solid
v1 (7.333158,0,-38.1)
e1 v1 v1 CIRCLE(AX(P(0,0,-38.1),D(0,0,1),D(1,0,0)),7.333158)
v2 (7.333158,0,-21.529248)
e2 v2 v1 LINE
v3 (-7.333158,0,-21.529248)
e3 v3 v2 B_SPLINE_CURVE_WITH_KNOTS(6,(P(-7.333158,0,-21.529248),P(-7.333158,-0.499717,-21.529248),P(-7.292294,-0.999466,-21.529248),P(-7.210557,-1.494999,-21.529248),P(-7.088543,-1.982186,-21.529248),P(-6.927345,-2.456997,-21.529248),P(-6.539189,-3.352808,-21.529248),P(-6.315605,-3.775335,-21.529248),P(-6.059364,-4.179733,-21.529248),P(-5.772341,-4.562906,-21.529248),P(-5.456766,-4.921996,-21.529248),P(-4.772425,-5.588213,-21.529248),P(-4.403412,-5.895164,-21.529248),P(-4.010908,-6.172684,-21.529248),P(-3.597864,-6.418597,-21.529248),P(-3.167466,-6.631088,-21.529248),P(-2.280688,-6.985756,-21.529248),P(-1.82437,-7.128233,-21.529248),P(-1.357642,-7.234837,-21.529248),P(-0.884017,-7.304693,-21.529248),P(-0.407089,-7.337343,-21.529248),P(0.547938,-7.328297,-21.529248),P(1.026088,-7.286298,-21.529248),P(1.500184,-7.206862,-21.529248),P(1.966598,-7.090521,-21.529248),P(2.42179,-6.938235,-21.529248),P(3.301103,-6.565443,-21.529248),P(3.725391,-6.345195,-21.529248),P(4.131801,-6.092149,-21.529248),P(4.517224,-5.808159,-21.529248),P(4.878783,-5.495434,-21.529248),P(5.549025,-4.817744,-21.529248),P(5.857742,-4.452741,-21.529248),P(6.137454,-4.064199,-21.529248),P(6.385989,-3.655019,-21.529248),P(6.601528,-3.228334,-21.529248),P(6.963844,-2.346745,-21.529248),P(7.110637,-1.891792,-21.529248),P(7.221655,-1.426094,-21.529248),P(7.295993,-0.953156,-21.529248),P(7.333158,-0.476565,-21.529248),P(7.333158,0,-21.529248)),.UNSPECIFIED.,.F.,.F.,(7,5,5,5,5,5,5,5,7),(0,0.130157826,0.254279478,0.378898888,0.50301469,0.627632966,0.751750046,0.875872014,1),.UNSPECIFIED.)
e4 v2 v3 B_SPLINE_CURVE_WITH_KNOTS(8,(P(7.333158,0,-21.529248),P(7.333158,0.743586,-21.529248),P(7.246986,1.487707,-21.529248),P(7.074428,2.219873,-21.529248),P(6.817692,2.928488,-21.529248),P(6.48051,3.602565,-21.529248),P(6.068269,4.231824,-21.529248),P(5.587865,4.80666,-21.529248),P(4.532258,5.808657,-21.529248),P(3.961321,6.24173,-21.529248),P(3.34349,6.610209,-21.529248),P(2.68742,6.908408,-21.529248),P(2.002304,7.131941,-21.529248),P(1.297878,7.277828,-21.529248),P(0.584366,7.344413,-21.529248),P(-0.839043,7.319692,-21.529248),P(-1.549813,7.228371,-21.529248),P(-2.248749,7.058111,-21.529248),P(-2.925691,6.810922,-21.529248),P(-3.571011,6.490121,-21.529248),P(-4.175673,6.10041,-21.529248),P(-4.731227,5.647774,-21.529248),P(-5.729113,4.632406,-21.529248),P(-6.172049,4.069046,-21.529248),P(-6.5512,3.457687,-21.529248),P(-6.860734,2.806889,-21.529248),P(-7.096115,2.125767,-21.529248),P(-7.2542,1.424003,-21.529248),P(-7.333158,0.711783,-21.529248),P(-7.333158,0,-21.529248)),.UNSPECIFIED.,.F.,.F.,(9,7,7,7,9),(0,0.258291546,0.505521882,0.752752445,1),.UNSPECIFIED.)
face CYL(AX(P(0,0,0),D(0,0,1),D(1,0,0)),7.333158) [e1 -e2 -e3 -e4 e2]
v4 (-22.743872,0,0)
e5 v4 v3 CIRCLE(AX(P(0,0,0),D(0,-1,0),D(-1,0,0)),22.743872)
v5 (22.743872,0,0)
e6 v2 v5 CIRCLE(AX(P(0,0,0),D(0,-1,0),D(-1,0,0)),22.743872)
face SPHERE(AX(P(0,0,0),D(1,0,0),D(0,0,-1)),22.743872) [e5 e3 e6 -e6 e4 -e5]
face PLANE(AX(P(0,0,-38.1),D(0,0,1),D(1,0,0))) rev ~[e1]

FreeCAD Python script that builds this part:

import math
import FreeCAD as App
import Part
import Sketcher

V = App.Vector
Q = App.Units.Quantity

doc = App.newDocument("Part")
body = doc.addObject("PartDesign::Body", "Body")

# Sketch on XZ plane
sketch1 = body.newObject("Sketcher::SketchObject", "Sketch")
sketch1.AttachmentSupport = (doc.getObject("XZ_Plane"), [""])
sketch1.MapMode = "FlatFace"
sketch1.addGeometry([
    Part.ArcOfCircle(Part.Circle(V(0, 0, 0), V(0, 0, 1), 22.743872), math.radians(180), math.radians(360)),
    Part.LineSegment(V(22.743872, 0, 0), V(-22.743872, 0, 0)),
], False)
sketch1.addConstraint([
    Sketcher.Constraint("Coincident", 0, 1, 1, 2),
    Sketcher.Constraint("Coincident", 1, 1, 0, 2),
    Sketcher.Constraint("Horizontal", 1),
    Sketcher.Constraint("Coincident", 0, 3, -1, 1),
    Sketcher.Constraint("PointOnObject", 0, 1, -1),
    Sketcher.Constraint("Radius", 0, Q("22.743872 mm")),
])
revolution = body.newObject("PartDesign::Revolution", "Revolution")
revolution.Profile = sketch1
revolution.ReferenceAxis = (sketch1, ["H_Axis"])
revolution.Angle = 360

# Sketch on XY plane
sketch2 = body.newObject("Sketcher::SketchObject", "Sketch001")
sketch2.AttachmentSupport = (doc.getObject("XY_Plane"), [""])
sketch2.MapMode = "FlatFace"
sketch2.addGeometry(Part.Circle(V(0, 0, 0), V(0, 0, 1), 7.333158), False)
sketch2.addConstraint([
    Sketcher.Constraint("Coincident", 0, 3, -1, 1),
    Sketcher.Constraint("Diameter", 0, Q("14.666316 mm")),
])
pad1 = body.newObject("PartDesign::Pad", "Pad")
pad1.Profile = sketch2
pad1.Length = Q("1.5 in")
pad1.Reversed = True

doc.recompute()
